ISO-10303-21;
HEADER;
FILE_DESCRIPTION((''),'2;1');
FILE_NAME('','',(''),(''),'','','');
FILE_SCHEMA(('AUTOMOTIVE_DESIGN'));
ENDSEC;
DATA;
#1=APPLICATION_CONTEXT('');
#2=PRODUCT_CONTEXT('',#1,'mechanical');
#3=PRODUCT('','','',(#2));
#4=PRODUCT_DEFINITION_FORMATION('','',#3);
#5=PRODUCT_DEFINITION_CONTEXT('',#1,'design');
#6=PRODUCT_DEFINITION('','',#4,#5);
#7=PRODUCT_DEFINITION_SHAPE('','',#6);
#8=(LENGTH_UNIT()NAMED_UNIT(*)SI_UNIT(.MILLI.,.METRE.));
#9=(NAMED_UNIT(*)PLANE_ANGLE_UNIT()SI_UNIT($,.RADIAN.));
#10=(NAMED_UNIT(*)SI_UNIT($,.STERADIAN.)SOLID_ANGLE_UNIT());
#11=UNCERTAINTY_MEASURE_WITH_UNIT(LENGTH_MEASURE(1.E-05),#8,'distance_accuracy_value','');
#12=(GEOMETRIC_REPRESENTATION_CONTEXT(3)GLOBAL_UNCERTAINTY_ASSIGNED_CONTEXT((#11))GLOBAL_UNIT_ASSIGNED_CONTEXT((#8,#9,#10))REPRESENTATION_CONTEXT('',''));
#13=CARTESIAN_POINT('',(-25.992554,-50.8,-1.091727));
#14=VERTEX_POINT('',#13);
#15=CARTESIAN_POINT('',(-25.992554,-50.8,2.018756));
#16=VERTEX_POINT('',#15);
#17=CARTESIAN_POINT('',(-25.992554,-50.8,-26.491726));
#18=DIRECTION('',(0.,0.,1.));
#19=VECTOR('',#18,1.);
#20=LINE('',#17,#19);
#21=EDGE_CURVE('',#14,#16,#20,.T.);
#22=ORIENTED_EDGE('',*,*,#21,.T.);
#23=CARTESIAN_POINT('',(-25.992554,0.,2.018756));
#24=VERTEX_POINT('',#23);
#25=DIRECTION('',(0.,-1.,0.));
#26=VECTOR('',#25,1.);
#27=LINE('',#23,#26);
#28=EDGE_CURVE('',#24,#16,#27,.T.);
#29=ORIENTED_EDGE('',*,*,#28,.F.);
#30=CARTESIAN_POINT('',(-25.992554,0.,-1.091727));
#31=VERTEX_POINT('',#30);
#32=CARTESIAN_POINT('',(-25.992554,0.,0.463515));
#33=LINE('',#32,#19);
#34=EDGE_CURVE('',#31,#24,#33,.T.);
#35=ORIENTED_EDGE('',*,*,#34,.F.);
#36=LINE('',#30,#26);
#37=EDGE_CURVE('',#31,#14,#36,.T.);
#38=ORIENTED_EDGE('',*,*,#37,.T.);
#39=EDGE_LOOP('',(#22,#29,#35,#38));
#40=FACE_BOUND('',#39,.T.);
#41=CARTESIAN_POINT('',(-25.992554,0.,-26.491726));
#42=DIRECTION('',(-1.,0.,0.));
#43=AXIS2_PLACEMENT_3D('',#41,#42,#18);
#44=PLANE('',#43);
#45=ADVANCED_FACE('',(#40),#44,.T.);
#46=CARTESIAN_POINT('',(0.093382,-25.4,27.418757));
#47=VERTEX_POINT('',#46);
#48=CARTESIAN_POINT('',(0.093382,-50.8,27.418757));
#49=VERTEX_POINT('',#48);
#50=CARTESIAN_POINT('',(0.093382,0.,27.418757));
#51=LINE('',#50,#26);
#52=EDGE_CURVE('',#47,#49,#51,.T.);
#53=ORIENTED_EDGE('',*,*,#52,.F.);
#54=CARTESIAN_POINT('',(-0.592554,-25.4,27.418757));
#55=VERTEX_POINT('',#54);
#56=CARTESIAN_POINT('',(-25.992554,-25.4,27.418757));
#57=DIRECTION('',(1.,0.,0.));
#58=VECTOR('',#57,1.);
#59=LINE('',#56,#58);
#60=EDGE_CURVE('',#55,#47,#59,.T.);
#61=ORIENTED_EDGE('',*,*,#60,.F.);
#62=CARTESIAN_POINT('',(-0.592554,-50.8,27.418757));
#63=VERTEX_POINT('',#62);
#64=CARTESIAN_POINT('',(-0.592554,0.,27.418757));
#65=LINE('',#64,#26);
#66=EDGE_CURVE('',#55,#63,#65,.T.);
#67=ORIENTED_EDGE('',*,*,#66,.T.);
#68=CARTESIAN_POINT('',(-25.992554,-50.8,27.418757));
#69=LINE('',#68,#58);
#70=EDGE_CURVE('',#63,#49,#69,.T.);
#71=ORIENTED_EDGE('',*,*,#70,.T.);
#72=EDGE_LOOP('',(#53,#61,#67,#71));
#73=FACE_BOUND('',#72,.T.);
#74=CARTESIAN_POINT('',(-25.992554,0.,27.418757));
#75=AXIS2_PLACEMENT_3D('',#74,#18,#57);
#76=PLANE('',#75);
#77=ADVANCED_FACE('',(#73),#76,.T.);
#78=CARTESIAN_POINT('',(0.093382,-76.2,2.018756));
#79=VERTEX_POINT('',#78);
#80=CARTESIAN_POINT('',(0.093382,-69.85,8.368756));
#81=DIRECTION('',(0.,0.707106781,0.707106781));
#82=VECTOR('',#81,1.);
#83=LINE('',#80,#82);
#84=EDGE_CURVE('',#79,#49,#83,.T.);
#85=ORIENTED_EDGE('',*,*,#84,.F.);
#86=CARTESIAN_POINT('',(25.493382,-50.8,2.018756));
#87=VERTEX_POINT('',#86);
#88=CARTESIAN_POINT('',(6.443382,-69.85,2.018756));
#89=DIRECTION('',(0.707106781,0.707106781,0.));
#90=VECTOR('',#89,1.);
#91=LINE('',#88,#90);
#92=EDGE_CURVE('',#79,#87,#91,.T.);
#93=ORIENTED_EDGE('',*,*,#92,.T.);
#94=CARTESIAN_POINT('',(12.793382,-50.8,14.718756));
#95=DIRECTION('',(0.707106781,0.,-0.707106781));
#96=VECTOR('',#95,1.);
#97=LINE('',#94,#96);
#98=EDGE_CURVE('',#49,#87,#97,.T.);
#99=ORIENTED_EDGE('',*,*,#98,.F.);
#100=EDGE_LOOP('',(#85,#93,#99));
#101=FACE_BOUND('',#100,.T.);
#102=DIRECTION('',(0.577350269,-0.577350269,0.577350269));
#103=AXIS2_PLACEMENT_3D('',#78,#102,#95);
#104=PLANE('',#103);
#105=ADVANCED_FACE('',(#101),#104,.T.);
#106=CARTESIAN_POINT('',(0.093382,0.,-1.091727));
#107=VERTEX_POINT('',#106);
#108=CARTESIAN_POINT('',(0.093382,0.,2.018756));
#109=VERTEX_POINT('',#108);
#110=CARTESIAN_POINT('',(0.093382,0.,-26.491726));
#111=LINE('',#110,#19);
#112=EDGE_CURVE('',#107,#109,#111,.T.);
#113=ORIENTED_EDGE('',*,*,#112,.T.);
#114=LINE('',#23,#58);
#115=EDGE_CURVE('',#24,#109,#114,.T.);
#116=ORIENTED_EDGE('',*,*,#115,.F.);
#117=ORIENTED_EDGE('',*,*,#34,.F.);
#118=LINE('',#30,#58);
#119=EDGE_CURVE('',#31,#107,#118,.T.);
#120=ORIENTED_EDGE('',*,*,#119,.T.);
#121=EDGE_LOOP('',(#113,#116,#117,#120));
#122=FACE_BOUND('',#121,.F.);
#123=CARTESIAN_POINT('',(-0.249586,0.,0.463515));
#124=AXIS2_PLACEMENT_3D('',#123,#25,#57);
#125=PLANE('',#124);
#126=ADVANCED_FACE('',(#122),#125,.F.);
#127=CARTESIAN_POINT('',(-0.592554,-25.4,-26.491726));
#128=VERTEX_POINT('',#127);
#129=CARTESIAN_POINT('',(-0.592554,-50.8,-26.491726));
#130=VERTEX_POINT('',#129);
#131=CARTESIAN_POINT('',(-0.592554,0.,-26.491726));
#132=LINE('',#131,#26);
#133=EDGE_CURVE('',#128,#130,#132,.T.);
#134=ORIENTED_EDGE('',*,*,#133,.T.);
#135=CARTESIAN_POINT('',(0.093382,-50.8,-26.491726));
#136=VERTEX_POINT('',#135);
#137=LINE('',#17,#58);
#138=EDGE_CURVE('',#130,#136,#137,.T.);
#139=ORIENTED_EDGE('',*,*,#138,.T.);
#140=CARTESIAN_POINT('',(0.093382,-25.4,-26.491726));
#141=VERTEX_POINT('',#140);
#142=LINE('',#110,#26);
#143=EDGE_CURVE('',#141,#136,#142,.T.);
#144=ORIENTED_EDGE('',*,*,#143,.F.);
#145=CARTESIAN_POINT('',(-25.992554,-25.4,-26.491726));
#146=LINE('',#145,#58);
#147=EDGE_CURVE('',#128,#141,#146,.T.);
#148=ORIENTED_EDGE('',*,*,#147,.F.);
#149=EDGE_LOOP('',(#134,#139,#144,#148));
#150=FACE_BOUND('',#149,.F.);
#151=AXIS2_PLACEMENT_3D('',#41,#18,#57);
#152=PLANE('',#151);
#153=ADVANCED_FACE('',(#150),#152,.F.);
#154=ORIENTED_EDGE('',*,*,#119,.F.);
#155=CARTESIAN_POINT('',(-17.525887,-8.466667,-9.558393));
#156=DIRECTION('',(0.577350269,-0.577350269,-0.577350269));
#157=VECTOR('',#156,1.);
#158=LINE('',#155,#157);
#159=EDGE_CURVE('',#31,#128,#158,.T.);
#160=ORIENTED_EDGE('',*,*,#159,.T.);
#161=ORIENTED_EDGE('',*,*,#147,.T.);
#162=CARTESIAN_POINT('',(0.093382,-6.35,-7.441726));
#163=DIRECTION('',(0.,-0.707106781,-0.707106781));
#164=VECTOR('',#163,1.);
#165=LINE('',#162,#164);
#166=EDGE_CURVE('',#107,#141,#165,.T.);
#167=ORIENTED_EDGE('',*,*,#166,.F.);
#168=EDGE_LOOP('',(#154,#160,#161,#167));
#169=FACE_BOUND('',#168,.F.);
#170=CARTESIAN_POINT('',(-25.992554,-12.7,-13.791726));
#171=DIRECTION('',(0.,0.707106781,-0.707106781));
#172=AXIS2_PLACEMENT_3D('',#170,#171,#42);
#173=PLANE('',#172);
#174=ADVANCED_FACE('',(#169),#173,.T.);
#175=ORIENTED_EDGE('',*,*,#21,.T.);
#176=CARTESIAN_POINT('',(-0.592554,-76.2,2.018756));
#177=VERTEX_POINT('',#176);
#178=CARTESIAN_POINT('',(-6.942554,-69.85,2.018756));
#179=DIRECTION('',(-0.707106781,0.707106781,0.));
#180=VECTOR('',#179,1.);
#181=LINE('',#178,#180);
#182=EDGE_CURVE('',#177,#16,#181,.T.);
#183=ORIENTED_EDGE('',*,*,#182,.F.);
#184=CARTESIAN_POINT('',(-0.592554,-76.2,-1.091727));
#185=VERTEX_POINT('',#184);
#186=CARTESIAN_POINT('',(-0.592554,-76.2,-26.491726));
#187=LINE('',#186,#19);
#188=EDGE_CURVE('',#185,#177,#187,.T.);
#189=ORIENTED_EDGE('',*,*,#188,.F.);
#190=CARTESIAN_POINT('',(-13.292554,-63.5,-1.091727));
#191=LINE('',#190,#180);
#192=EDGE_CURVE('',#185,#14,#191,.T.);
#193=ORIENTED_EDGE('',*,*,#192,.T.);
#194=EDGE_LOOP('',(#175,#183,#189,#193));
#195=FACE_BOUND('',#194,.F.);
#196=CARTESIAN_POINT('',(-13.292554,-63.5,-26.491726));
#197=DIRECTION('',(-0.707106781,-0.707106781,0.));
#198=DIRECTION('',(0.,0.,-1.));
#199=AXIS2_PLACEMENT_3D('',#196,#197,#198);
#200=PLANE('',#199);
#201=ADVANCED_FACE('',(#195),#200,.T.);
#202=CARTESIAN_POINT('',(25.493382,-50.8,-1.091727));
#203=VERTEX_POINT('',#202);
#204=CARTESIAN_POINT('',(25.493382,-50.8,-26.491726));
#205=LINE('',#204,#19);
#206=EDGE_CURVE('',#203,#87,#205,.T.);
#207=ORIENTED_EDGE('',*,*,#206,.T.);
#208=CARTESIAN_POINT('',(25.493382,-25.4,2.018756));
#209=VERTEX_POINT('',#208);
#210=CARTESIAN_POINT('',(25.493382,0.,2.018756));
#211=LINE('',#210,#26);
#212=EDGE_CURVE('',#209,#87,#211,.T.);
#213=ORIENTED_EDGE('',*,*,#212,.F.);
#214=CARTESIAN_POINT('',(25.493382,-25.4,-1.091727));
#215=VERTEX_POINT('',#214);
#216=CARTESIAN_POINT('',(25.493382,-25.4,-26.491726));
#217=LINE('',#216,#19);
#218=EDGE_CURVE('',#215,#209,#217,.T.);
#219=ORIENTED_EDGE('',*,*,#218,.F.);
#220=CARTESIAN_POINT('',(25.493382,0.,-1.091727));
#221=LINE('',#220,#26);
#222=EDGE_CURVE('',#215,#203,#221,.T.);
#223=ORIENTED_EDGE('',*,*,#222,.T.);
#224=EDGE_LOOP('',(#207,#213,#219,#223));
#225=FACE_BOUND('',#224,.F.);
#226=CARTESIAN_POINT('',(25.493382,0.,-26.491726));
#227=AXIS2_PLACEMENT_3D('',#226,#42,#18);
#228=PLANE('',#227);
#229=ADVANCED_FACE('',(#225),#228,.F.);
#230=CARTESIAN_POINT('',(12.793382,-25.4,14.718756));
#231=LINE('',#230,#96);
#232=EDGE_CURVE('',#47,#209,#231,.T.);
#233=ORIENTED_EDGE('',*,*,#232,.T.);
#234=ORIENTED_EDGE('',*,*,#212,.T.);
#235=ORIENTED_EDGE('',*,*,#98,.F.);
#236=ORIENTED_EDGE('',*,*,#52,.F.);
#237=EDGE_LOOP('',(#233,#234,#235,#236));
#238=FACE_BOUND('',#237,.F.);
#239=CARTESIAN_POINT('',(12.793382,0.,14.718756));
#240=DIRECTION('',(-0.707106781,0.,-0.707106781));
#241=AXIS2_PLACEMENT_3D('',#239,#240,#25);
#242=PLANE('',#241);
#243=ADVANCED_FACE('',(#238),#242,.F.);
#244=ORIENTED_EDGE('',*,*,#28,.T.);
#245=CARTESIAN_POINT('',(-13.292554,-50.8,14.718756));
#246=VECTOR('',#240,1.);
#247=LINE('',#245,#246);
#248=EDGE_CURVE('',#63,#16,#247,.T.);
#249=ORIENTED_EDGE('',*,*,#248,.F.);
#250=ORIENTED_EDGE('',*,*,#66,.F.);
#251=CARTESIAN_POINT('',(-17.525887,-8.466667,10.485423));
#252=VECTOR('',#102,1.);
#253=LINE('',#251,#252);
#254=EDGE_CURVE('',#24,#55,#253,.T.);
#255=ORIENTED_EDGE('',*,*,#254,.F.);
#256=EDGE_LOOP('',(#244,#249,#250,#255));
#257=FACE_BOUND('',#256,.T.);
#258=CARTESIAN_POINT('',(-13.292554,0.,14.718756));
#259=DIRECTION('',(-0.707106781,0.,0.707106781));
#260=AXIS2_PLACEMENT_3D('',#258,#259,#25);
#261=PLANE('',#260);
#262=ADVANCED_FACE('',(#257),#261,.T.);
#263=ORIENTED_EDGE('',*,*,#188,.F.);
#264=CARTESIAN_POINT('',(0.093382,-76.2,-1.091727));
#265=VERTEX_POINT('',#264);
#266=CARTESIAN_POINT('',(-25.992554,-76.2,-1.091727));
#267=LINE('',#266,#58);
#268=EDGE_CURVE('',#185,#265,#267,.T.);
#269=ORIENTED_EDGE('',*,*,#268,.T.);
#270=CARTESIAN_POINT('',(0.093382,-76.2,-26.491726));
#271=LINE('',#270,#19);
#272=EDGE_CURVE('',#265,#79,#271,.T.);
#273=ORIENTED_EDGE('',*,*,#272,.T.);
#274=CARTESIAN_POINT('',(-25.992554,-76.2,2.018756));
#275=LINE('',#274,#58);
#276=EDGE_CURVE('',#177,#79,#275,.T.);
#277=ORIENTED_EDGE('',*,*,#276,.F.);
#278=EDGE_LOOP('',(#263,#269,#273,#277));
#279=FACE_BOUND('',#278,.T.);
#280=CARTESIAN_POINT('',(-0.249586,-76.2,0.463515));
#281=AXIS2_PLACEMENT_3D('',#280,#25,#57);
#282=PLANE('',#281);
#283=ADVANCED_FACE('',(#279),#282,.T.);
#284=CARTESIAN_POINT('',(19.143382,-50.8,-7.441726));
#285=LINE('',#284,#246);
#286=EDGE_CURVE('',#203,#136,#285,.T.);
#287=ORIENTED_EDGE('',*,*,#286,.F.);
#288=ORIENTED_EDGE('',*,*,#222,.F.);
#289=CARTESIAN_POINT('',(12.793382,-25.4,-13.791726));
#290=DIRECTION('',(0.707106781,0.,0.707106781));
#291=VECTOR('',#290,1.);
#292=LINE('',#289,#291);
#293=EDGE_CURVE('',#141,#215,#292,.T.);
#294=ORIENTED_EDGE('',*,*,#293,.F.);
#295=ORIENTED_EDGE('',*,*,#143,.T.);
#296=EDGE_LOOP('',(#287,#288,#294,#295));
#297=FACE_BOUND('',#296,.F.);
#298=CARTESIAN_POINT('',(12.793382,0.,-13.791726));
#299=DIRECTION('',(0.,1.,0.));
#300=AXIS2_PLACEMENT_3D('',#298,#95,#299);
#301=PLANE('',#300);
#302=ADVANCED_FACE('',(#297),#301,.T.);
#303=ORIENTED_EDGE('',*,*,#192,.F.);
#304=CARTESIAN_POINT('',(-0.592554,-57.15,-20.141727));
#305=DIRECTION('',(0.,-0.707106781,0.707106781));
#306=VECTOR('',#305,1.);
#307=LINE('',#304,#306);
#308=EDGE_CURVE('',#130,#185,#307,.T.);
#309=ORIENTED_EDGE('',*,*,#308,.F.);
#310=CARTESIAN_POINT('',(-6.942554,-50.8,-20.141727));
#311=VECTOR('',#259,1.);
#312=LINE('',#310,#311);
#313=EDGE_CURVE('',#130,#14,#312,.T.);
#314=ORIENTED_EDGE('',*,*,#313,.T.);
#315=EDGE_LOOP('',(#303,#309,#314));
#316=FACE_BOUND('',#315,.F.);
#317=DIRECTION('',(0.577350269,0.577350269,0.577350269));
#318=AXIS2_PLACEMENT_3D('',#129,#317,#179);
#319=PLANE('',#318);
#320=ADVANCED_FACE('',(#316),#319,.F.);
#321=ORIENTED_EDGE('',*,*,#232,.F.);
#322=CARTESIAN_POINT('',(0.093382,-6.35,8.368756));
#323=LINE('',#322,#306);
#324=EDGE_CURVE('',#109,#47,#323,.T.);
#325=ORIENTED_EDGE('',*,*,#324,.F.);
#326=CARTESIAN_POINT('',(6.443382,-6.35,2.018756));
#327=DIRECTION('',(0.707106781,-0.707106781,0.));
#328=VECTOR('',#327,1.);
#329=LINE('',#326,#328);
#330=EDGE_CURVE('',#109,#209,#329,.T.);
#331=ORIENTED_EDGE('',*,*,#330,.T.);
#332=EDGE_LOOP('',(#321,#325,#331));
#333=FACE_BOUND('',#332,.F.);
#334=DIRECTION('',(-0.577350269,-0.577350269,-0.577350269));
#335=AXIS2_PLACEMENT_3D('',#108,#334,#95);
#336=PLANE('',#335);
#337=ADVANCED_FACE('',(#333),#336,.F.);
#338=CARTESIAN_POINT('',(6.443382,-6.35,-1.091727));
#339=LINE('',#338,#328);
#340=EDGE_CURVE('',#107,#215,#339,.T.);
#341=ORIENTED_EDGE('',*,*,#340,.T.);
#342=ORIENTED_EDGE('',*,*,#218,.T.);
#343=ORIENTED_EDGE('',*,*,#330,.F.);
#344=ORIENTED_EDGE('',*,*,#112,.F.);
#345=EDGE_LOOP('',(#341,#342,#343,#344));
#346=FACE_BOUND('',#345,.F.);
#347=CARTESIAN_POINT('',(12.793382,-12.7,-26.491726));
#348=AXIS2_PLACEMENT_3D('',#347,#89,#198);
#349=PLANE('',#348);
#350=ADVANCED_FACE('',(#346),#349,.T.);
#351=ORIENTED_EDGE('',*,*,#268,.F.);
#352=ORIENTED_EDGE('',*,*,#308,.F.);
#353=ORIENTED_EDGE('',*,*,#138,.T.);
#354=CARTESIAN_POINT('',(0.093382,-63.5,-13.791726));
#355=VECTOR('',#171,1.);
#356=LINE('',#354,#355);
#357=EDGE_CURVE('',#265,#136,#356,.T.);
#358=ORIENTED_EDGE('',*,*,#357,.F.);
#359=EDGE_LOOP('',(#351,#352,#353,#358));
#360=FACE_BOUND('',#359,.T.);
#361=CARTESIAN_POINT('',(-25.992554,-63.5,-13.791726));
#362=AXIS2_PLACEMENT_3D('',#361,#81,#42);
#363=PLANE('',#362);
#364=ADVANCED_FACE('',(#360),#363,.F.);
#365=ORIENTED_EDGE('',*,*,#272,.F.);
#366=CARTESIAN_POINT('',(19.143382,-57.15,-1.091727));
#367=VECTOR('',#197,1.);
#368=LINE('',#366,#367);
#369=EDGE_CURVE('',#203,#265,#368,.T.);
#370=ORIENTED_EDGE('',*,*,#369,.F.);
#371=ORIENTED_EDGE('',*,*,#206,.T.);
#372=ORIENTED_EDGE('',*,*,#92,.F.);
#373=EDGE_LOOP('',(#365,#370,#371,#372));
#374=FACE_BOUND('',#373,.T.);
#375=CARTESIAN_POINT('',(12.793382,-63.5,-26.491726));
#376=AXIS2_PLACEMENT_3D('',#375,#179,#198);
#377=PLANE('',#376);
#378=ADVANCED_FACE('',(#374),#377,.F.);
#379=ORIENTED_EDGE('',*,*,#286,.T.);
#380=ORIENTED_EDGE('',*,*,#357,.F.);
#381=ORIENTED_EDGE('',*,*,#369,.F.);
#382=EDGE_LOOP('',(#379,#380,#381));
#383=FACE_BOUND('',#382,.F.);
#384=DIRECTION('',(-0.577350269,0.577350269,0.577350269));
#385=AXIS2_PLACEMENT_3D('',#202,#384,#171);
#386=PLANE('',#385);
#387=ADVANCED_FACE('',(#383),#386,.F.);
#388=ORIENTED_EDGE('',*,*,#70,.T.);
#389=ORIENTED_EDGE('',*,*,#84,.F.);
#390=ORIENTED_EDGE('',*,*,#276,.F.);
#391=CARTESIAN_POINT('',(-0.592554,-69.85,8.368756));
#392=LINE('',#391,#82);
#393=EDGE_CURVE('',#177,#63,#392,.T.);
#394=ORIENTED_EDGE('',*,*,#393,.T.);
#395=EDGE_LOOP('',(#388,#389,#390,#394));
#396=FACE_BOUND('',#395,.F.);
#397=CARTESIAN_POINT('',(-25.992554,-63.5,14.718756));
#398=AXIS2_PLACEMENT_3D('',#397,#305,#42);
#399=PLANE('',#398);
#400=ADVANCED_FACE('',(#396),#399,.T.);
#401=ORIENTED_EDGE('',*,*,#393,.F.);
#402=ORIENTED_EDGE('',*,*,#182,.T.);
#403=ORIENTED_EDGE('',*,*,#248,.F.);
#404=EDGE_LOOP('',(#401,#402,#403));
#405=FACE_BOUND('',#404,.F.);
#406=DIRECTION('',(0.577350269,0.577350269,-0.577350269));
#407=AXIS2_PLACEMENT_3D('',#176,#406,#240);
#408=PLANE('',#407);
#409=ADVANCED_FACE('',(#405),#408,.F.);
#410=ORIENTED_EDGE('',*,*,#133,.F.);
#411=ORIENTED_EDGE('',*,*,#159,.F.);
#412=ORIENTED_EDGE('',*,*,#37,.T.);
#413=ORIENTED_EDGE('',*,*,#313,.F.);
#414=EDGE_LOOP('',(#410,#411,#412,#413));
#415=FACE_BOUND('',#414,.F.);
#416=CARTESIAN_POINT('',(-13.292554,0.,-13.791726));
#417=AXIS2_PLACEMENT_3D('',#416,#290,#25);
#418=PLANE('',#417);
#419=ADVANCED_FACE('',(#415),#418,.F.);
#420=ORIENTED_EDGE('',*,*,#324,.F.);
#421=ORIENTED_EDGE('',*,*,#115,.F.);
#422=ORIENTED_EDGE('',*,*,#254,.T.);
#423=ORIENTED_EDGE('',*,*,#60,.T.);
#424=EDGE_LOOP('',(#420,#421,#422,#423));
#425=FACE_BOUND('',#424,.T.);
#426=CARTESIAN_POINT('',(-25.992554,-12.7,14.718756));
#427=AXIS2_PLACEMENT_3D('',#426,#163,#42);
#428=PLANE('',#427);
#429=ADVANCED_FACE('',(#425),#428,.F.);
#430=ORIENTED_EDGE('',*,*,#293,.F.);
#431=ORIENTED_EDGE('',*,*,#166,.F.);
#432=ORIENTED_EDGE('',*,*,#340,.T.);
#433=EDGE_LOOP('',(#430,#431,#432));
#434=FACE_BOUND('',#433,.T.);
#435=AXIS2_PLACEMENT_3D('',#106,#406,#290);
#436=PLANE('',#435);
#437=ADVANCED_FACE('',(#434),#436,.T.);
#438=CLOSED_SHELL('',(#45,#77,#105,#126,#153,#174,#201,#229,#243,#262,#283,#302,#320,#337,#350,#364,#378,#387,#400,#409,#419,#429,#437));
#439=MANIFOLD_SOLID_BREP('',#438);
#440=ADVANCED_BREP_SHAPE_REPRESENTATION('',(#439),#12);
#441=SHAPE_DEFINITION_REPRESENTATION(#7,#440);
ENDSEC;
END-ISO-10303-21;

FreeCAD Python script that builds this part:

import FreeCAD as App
import Part
import Sketcher

V = App.Vector
Q = App.Units.Quantity


def edges_at(feature, points):
    """Names of the edges that pass closest to the given points."""
    edges = feature.Shape.Edges
    near = lambda p: min(range(len(edges)), key=lambda i: edges[i].distToShape(Part.Vertex(*p))[0])
    return sorted({f"Edge{near(p) + 1}" for p in points})

doc = App.newDocument("Part")
body = doc.addObject("PartDesign::Body", "Body")

# Sketch on XZ plane
sketch1 = doc.addObject("Sketcher::SketchObject", "Sketch")
body.addObject(sketch1)
sketch1.AttachmentSupport = (doc.XZ_Plane, [""])
sketch1.MapMode = "FlatFace"
sketch1.addGeometry([
    Part.LineSegment(V(-26, 27, 0), V(-26, -26, 0)),
    Part.LineSegment(V(-26, -26, 0), V(25, -26, 0)),
    Part.LineSegment(V(25, -26, 0), V(25, 27, 0)),
    Part.LineSegment(V(25, 27, 0), V(-26, 27, 0)),
], False)
sketch1.addConstraint([
    Sketcher.Constraint("Coincident", 0, 2, 1, 1),
    Sketcher.Constraint("Coincident", 1, 2, 2, 1),
    Sketcher.Constraint("Coincident", 2, 2, 3, 1),
    Sketcher.Constraint("Coincident", 3, 2, 0, 1),
    Sketcher.Constraint("Vertical", 0),
    Sketcher.Constraint("Horizontal", 1),
    Sketcher.Constraint("Vertical", 2),
    Sketcher.Constraint("Horizontal", 3),
    Sketcher.Constraint("DistanceX", 1, 1, 1, 2, 51.485936),
    Sketcher.Constraint("DistanceY", 0, 2, 0, 1, 53.910483),
    Sketcher.Constraint("DistanceX", 0, 2, -1, 1, 25.992554),
    Sketcher.Constraint("DistanceY", 0, 2, -1, 1, 26.491726),
])
pad1 = doc.addObject("PartDesign::Pad", "Pad")
body.addObject(pad1)
pad1.Profile = sketch1
pad1.Length = Q("3 in")
doc.recompute()

chamfer = doc.addObject("PartDesign::Chamfer", "Chamfer")
body.addObject(chamfer)
chamfer.Base = (pad1, edges_at(pad1, [
    (25.493, -38.1, 27.419),
    (-25.993, -38.1, 27.419),
    (-0.25, 0, 27.419),
    (-0.25, -76.2, 27.419),
    (-25.993, -76.2, 0.464),
    (-0.25, -76.2, -26.492),
    (25.493, -76.2, 0.464),
    (-25.993, -38.1, -26.492),
    (25.493, -38.1, -26.492),
    (-0.25, 0, -26.492),
    (25.493, 0, 0.464),
]))
chamfer.Size = Q("1 in")

doc.recompute()
